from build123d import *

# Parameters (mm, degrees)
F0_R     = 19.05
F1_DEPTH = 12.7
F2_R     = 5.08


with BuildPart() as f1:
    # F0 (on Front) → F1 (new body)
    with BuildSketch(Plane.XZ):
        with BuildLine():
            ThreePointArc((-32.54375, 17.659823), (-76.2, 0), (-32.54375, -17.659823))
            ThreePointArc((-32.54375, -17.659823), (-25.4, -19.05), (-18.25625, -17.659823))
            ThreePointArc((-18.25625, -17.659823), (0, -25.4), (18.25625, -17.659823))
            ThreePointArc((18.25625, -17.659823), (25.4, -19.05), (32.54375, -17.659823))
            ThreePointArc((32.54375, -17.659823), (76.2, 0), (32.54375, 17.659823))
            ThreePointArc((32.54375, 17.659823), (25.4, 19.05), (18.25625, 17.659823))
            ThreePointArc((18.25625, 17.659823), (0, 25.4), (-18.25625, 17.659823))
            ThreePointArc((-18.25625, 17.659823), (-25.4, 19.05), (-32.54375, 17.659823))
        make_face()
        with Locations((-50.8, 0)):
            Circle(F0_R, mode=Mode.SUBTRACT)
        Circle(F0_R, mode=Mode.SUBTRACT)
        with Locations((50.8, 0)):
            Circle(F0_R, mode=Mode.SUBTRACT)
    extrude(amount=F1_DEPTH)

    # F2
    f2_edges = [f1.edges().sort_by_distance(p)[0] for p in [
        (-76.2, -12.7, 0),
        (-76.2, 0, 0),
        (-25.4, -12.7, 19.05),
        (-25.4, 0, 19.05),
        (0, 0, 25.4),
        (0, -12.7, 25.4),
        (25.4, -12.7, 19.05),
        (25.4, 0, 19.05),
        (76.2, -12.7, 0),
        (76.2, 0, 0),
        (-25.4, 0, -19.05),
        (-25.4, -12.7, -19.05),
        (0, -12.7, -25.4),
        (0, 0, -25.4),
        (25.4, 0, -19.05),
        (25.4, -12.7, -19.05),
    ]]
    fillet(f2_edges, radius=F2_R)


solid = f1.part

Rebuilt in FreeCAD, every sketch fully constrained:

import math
import FreeCAD as App
import Part
import Sketcher
from FreeCAD import Vector
Q = App.Units.Quantity


def edges_at(feature, points):
    """Names of the edges that pass closest to the given points."""
    edges = feature.Shape.Edges
    near = lambda p: min(range(len(edges)), key=lambda i: edges[i].distToShape(Part.Vertex(*p))[0])
    return sorted({f"Edge{near(p) + 1}" for p in points})

doc = App.newDocument("Part")
params = doc.addObject("Spreadsheet::Sheet", "Params")
for row, (alias, value) in enumerate([
    ("sketch1_radius", "1 in"),
    ("sketch1_diameter", "1.5 in"),
    ("sketch1_radius2", "0.7500002 in"),
    ("pad1_length", "0.5 in"),
    ("fillet_radius", "0.2 in"),
], start=1):
    params.set(f"A{row}", alias)
    params.set(f"B{row}", "=" + value)
    params.setAlias(f"B{row}", alias)

body = doc.addObject("PartDesign::Body", "Body")

# Sketch on XZ plane
sketch1 = doc.addObject("Sketcher::SketchObject", "Sketch")
body.addObject(sketch1)
sketch1.AttachmentSupport = (doc.XZ_Plane, [""])
sketch1.MapMode = "FlatFace"
sketch1.addGeometry(Part.ArcOfCircle(Part.Circle(Vector(-50.8, 0, 0), Vector(0, 0, 1), 25.4), math.radians(44.048626), math.radians(315.951374)), False)
sketch1.addGeometry(Part.ArcOfCircle(Part.Circle(Vector(-25.4, 0.000004, 0), Vector(0, 0, 1), 19.050004), math.radians(-112.024307), math.radians(-67.975693)), False)
sketch1.addGeometry(Part.ArcOfCircle(Part.Circle(Vector(0, 0.000001, 0), Vector(0, 0, 1), 25.400001), math.radians(-135.951372), math.radians(-44.048628)), False)
sketch1.addGeometry(Part.ArcOfCircle(Part.Circle(Vector(25.4, 0.000004, 0), Vector(0, 0, 1), 19.050004), math.radians(-112.024307), math.radians(-67.975693)), False)
sketch1.addGeometry(Part.ArcOfCircle(Part.Circle(Vector(50.8, 0, 0), Vector(0, 0, 1), 25.4), math.radians(-135.951374), math.radians(135.951374)), False)
sketch1.addGeometry(Part.ArcOfCircle(Part.Circle(Vector(25.4, -0.000004, 0), Vector(0, 0, 1), 19.050004), math.radians(67.975693), math.radians(112.024307)), False)
sketch1.addGeometry(Part.ArcOfCircle(Part.Circle(Vector(0, -0.000001, 0), Vector(0, 0, 1), 25.400001), math.radians(44.048628), math.radians(135.951372)), False)
sketch1.addGeometry(Part.ArcOfCircle(Part.Circle(Vector(-25.4, -0.000004, 0), Vector(0, 0, 1), 19.050004), math.radians(67.975693), math.radians(112.024307)), False)
sketch1.addGeometry(Part.Circle(Vector(-50.8, 0, 0), Vector(0, 0, 1), 19.05), False)
sketch1.addGeometry(Part.Circle(Vector(0, 0, 0), Vector(0, 0, 1), 19.05), False)
sketch1.addGeometry(Part.Circle(Vector(50.8, 0, 0), Vector(0, 0, 1), 19.05), False)
sketch1.addConstraint(Sketcher.Constraint("Coincident", 0, 2, 1, 1))
sketch1.addConstraint(Sketcher.Constraint("Coincident", 1, 2, 2, 1))
sketch1.addConstraint(Sketcher.Constraint("Coincident", 2, 2, 3, 1))
sketch1.addConstraint(Sketcher.Constraint("Coincident", 3, 2, 4, 1))
sketch1.addConstraint(Sketcher.Constraint("Coincident", 4, 2, 5, 1))
sketch1.addConstraint(Sketcher.Constraint("Coincident", 5, 2, 6, 1))
sketch1.addConstraint(Sketcher.Constraint("Coincident", 6, 2, 7, 1))
sketch1.addConstraint(Sketcher.Constraint("Coincident", 7, 2, 0, 1))
sketch1.addConstraint(Sketcher.Constraint("Coincident", 2, 3, -1, 1))
sketch1.addConstraint(Sketcher.Constraint("Coincident", 6, 3, -1, 1))
sketch1.addConstraint(Sketcher.Constraint("Coincident", 9, 3, -1, 1))
sketch1.addConstraint(Sketcher.Constraint("Coincident", 5, 3, 3, 3))
sketch1.addConstraint(Sketcher.Constraint("Coincident", 7, 3, 1, 3))
sketch1.addConstraint(Sketcher.Constraint("Coincident", 8, 3, 0, 3))
sketch1.addConstraint(Sketcher.Constraint("Coincident", 10, 3, 4, 3))
sketch1.addConstraint(Sketcher.Constraint("Equal", 0, 2))
sketch1.addConstraint(Sketcher.Constraint("Equal", 1, 3))
sketch1.addConstraint(Sketcher.Constraint("Equal", 2, 4))
sketch1.addConstraint(Sketcher.Constraint("Equal", 3, 5))
sketch1.addConstraint(Sketcher.Constraint("Equal", 4, 6))
sketch1.addConstraint(Sketcher.Constraint("Equal", 5, 7))
sketch1.addConstraint(Sketcher.Constraint("Equal", 8, 9))
sketch1.addConstraint(Sketcher.Constraint("Equal", 9, 10))
sketch1.addConstraint(Sketcher.Constraint("Symmetric", 1, 3, 3, 3, -1, 1))
sketch1.addConstraint(Sketcher.Constraint("Symmetric", 0, 3, 4, 3, -1, 1))
sketch1.addConstraint(Sketcher.Constraint("Symmetric", 0, 2, 3, 2, -2))
sketch1.addConstraint(Sketcher.Constraint("Horizontal", 0, 2, 1, 2))
sketch1.addConstraint(Sketcher.Constraint("Radius", 0, Q("1 in")))
sketch1.addConstraint(Sketcher.Constraint("Diameter", 8, Q("1.5 in")))
sketch1.addConstraint(Sketcher.Constraint("Radius", 1, Q("0.7500002 in")))
sketch1.addConstraint(Sketcher.Constraint("DistanceX", 0, 3, -1, 1, Q("2 in")))
sketch1.setExpression("Constraints[27]", "Params.sketch1_radius")
sketch1.setExpression("Constraints[28]", "Params.sketch1_diameter")
sketch1.setExpression("Constraints[29]", "Params.sketch1_radius2")
pad1 = doc.addObject("PartDesign::Pad", "Pad")
body.addObject(pad1)
pad1.Profile = sketch1
pad1.setExpression("Length", "Params.pad1_length")
doc.recompute()

fillet = doc.addObject("PartDesign::Fillet", "Fillet")
body.addObject(fillet)
fillet.Base = (pad1, edges_at(pad1, [
    (-76.2, -12.7, 0),
    (-76.2, 0, 0),
    (-25.4, -12.7, 19.05),
    (-25.4, 0, 19.05),
    (0, 0, 25.4),
    (0, -12.7, 25.4),
    (25.4, -12.7, 19.05),
    (25.4, 0, 19.05),
    (76.2, -12.7, 0),
    (76.2, 0, 0),
    (-25.4, 0, -19.05),
    (-25.4, -12.7, -19.05),
    (0, -12.7, -25.4),
    (0, 0, -25.4),
    (25.4, 0, -19.05),
    (25.4, -12.7, -19.05),
]))
fillet.setExpression("Radius", "Params.fillet_radius")

doc.recompute()
